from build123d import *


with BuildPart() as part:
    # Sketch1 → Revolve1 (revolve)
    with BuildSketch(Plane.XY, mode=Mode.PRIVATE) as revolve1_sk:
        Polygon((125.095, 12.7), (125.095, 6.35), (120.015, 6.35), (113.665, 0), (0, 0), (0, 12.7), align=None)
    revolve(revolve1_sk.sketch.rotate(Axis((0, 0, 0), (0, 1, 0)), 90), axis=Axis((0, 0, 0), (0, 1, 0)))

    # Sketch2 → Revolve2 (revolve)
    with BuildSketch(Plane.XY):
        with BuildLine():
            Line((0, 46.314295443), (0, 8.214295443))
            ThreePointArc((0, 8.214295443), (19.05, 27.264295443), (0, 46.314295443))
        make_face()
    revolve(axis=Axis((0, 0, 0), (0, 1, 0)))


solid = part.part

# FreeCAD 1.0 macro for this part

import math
import FreeCAD as App
import Part
import Sketcher
from FreeCAD import Vector
Q = App.Units.Quantity


def add_polygon(sketch, points):
    """Adds a closed chain of lines whose ends are joined by coincident constraints."""
    first, n = sketch.GeometryCount, len(points)
    for a, b in zip(points, points[1:] + points[:1]):
        sketch.addGeometry(Part.LineSegment(App.Vector(*a, 0), App.Vector(*b, 0)), False)
    for i in range(n):
        sketch.addConstraint(Sketcher.Constraint("Coincident", first + i, 2, first + (i + 1) % n, 1))

doc = App.newDocument("Part")
body = doc.addObject("PartDesign::Body", "Body")

# Sketch on XY plane
sketch1 = body.newObject("Sketcher::SketchObject", "Sketch")
sketch1.AttachmentSupport = (doc.getObject("XY_Plane"), [""])
sketch1.MapMode = "FlatFace"
add_polygon(sketch1, [(125, 6), (125, 13), (0, 13), (0, 0), (114, 0), (120, 6)])  # lines 0-5
sketch1.addConstraint(Sketcher.Constraint("Vertical", 0))
sketch1.addConstraint(Sketcher.Constraint("Horizontal", 1))
sketch1.addConstraint(Sketcher.Constraint("Vertical", 2))
sketch1.addConstraint(Sketcher.Constraint("Horizontal", 3))
sketch1.addConstraint(Sketcher.Constraint("Horizontal", 5))
sketch1.addConstraint(Sketcher.Constraint("Coincident", 2, 2, -1, 1))
sketch1.addConstraint(Sketcher.Constraint("DistanceX", 5, 1, 5, 2, Q("0.2 in")))
sketch1.addConstraint(Sketcher.Constraint("DistanceY", 2, 2, 2, 1, Q("0.5 in")))
sketch1.addConstraint(Sketcher.Constraint("Angle", 4, Q("45 deg")))
sketch1.addConstraint(Sketcher.Constraint("DistanceY", 0, 1, 0, 2, Q("0.25 in")))
sketch1.addConstraint(Sketcher.Constraint("DistanceX", 1, 2, 1, 1, Q("4.925 in")))
revolution = body.newObject("PartDesign::Revolution", "Revolution")
revolution.Profile = sketch1
revolution.ReferenceAxis = (sketch1, ["V_Axis"])
revolution.Angle = 360

# Sketch on XY plane
sketch2 = body.newObject("Sketcher::SketchObject", "Sketch001")
sketch2.AttachmentSupport = (doc.getObject("XY_Plane"), [""])
sketch2.MapMode = "FlatFace"
sketch2.addGeometry(Part.LineSegment(Vector(0, 46, 0), Vector(0, 8, 0)), False)
sketch2.addGeometry(Part.ArcOfCircle(Part.Circle(Vector(0, 27, 0), Vector(0, 0, 1), 19), math.radians(-90), math.radians(90)), False)
sketch2.addConstraint(Sketcher.Constraint("Coincident", 0, 1, 1, 2))
sketch2.addConstraint(Sketcher.Constraint("Coincident", 1, 1, 0, 2))
sketch2.addConstraint(Sketcher.Constraint("Vertical", 0))
sketch2.addConstraint(Sketcher.Constraint("PointOnObject", 1, 3, -2))
sketch2.addConstraint(Sketcher.Constraint("PointOnObject", 0, 1, -2))
sketch2.addConstraint(Sketcher.Constraint("Radius", 1, Q("0.75 in")))
sketch2.addConstraint(Sketcher.Constraint("DistanceY", -1, 1, 1, 3, Q("27.264295 mm")))
revolution2 = body.newObject("PartDesign::Revolution", "Revolution001")
revolution2.Profile = sketch2
revolution2.ReferenceAxis = (sketch2, ["V_Axis"])
revolution2.Angle = 360

doc.recompute()
